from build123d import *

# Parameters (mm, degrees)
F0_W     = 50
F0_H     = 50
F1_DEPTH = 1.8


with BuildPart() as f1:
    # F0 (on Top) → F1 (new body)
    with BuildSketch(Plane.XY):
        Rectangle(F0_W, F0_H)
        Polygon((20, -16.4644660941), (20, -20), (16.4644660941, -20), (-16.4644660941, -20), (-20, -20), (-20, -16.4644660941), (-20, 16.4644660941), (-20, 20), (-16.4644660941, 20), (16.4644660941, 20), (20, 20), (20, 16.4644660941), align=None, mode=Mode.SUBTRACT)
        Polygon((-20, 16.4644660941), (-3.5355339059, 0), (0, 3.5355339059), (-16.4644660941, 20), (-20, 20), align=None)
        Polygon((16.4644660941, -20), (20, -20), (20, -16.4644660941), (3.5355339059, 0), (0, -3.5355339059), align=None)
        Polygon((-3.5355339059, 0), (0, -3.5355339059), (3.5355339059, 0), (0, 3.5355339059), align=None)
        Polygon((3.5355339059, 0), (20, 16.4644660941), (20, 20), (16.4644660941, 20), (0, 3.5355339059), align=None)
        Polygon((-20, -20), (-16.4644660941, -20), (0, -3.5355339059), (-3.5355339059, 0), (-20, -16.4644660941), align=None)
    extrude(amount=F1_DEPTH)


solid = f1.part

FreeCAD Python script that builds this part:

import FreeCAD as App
import Part
import Sketcher


def add_polygon(sketch, points):
    """Adds a closed chain of lines whose ends are joined by coincident constraints."""
    first, n = sketch.GeometryCount, len(points)
    for a, b in zip(points, points[1:] + points[:1]):
        sketch.addGeometry(Part.LineSegment(App.Vector(*a, 0), App.Vector(*b, 0)), False)
    for i in range(n):
        sketch.addConstraint(Sketcher.Constraint("Coincident", first + i, 2, first + (i + 1) % n, 1))

doc = App.newDocument("Part")
params = doc.addObject("Spreadsheet::Sheet", "Params")
for row, (alias, value) in enumerate([
    ("sketch1_width", "50 mm"),
    ("pad1_length", "1.8 mm"),
], start=1):
    params.set(f"A{row}", alias)
    params.set(f"B{row}", "=" + value)
    params.setAlias(f"B{row}", alias)

body = doc.addObject("PartDesign::Body", "Body")

# Sketch on XY plane
sketch1 = body.newObject("Sketcher::SketchObject", "Sketch")
sketch1.AttachmentSupport = (doc.getObject("XY_Plane"), [""])
sketch1.MapMode = "FlatFace"
add_polygon(sketch1, [(-25, 25), (-25, -25), (25, -25), (25, 25)])  # lines 0-3
add_polygon(sketch1, [(20, 16.464466), (20, -16.464466), (3.535534, 0)])  # lines 4-6
add_polygon(sketch1, [(0, 3.535534), (-16.464466, 20), (16.464466, 20)])  # lines 7-9
add_polygon(sketch1, [(16.464466, -20), (-16.464466, -20), (0, -3.535534)])  # lines 10-12
add_polygon(sketch1, [(-20, -16.464466), (-20, 16.464466), (-3.535534, 0)])  # lines 13-15
sketch1.addConstraint([
    Sketcher.Constraint("Vertical", 0),
    Sketcher.Constraint("Horizontal", 1),
    Sketcher.Constraint("Vertical", 2),
    Sketcher.Constraint("Horizontal", 3),
    Sketcher.Constraint("Vertical", 4),
    Sketcher.Constraint("Horizontal", 8),
    Sketcher.Constraint("Horizontal", 10),
    Sketcher.Constraint("Vertical", 13),
    Sketcher.Constraint("Symmetric", 0, 2, 2, 2, -1, 1),
    Sketcher.Constraint("Symmetric", 8, 2, 10, 2, -1, 1),
    Sketcher.Constraint("Symmetric", 9, 2, 11, 2, -1, 1),
    Sketcher.Constraint("Symmetric", 4, 2, 13, 2, -1, 1),
    Sketcher.Constraint("Symmetric", 5, 2, 14, 2, -1, 1),
    Sketcher.Constraint("PointOnObject", 5, 2, -1),
    Sketcher.Constraint("PointOnObject", 9, 2, -2),
    Sketcher.Constraint("Perpendicular", 5, 6),
    Sketcher.Constraint("Perpendicular", 6, 7),
    Sketcher.Constraint("Perpendicular", 7, 9),
    Sketcher.Constraint("Perpendicular", 11, 12),
    Sketcher.Constraint("Perpendicular", 14, 15),
    Sketcher.Constraint("Horizontal", 6, 2, 13, 2),
    Sketcher.Constraint("Equal", 3, 0),
    Sketcher.Constraint("Equal", 10, 4),
    Sketcher.Constraint("DistanceX", 1, 1, 1, 2, 50.0),
    Sketcher.Constraint("DistanceX", -1, 1, 4, 2, 20.0),
    Sketcher.Constraint("DistanceY", -1, 1, 7, 2, 20.0),
    Sketcher.Constraint("Distance", 5, 23.284271),
])
sketch1.setExpression("Constraints[39]", "Params.sketch1_width")
pad1 = body.newObject("PartDesign::Pad", "Pad")
pad1.Profile = sketch1
pad1.setExpression("Length", "Params.pad1_length")

doc.recompute()
